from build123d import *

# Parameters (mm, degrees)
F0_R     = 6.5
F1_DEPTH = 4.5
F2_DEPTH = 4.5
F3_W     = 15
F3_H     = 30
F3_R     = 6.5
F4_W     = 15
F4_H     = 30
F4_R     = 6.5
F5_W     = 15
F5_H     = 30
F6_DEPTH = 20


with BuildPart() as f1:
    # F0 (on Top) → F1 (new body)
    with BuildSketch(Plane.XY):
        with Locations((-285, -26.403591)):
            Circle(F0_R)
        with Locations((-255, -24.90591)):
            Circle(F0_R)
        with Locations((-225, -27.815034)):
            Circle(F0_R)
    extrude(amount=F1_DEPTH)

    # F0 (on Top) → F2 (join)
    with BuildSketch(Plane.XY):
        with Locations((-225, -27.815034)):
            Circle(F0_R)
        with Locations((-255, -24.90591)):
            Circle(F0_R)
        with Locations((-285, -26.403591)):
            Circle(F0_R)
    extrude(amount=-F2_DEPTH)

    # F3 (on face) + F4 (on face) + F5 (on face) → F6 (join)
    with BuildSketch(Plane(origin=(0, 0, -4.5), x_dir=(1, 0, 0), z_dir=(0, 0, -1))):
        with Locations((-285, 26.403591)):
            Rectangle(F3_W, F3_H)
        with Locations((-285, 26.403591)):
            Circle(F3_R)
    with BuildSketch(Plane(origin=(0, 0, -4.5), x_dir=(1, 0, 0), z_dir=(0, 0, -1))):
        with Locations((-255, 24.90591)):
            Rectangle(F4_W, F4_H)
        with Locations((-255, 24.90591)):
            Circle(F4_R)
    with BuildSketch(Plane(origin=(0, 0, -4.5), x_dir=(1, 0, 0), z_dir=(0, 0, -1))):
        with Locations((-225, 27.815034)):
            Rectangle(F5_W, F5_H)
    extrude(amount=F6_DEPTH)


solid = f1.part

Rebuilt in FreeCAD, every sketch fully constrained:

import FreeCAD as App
import Part
import Sketcher

doc = App.newDocument("Part")
params = doc.addObject("Spreadsheet::Sheet", "Params")
for row, (alias, value) in enumerate([
    ("sketch1_diameter", "13 mm"),
    ("pad1_length", "4.5 mm"),
    ("sketch2_diameter", "13 mm"),
    ("pad2_length", "4.5 mm"),
    ("sketch3_width", "15 mm"),
    ("sketch3_height", "30 mm"),
    ("pad3_length", "20 mm"),
], start=1):
    params.set(f"A{row}", alias)
    params.set(f"B{row}", "=" + value)
    params.setAlias(f"B{row}", alias)

body = doc.addObject("PartDesign::Body", "Body")
body.AllowCompound = True

sketch1 = body.newObject("Sketcher::SketchObject", "Sketch")
sketch1.AttachmentSupport = (doc.getObject("XY_Plane"), [""])
sketch1.MapMode = "FlatFace"
sketch1.addGeometry([
    Part.Circle(App.Vector(-285, -26, 0), App.Vector(0, 0, 1), 6),
    Part.Circle(App.Vector(-255, -25, 0), App.Vector(0, 0, 1), 6),
    Part.Circle(App.Vector(-225, -28, 0), App.Vector(0, 0, 1), 6),
], False)
sketch1.addConstraint([
    Sketcher.Constraint("Equal", 0, 1),
    Sketcher.Constraint("Equal", 1, 2),
    Sketcher.Constraint("Diameter", 0, 13.0),
    Sketcher.Constraint("DistanceX", 0, 3, -1, 1, 285.0),
    Sketcher.Constraint("DistanceX", 1, 3, -1, 1, 255.0),
    Sketcher.Constraint("DistanceX", 2, 3, -1, 1, 225.0),
    Sketcher.Constraint("DistanceY", 0, 3, -1, 1, 26.403591),
    Sketcher.Constraint("DistanceY", 1, 3, -1, 1, 24.90591),
    Sketcher.Constraint("DistanceY", 2, 3, -1, 1, 27.815034),
])
sketch1.setExpression("Constraints[2]", "Params.sketch1_diameter")
pad1 = body.newObject("PartDesign::Pad", "Pad")
pad1.Profile = sketch1
pad1.setExpression("Length", "Params.pad1_length")

sketch2 = body.newObject("Sketcher::SketchObject", "Sketch001")
sketch2.AttachmentSupport = (doc.getObject("XY_Plane"), [""])
sketch2.MapMode = "FlatFace"
sketch2.addGeometry([
    Part.Circle(App.Vector(-225, -28, 0), App.Vector(0, 0, 1), 6),
    Part.Circle(App.Vector(-255, -25, 0), App.Vector(0, 0, 1), 6),
    Part.Circle(App.Vector(-285, -26, 0), App.Vector(0, 0, 1), 6),
], False)
sketch2.addConstraint([
    Sketcher.Constraint("Equal", 0, 1),
    Sketcher.Constraint("Equal", 1, 2),
    Sketcher.Constraint("Diameter", 0, 13.0),
    Sketcher.Constraint("DistanceX", 0, 3, -1, 1, 225.0),
    Sketcher.Constraint("DistanceX", 1, 3, -1, 1, 255.0),
    Sketcher.Constraint("DistanceX", 2, 3, -1, 1, 285.0),
    Sketcher.Constraint("DistanceY", 1, 3, -1, 1, 24.90591),
    Sketcher.Constraint("DistanceY", 2, 3, -1, 1, 26.403591),
    Sketcher.Constraint("DistanceY", 0, 3, -1, 1, 27.815034),
])
sketch2.setExpression("Constraints[2]", "Params.sketch2_diameter")
pad2 = body.newObject("PartDesign::Pad", "Pad001")
pad2.Profile = sketch2
pad2.setExpression("Length", "Params.pad2_length")
pad2.Reversed = True

sketch3 = body.newObject("Sketcher::SketchObject", "Sketch002")
sketch3.AttachmentSupport = (doc.getObject("XY_Plane"), [""])
sketch3.MapMode = "FlatFace"
sketch3.AttachmentOffset = App.Placement(App.Vector(0, 0, -4.5), App.Rotation())
sketch3.addGeometry([
    Part.LineSegment(App.Vector(-292, -41, 0), App.Vector(-292, -11, 0)),
    Part.LineSegment(App.Vector(-292, -11, 0), App.Vector(-278, -11, 0)),
    Part.LineSegment(App.Vector(-278, -11, 0), App.Vector(-278, -41, 0)),
    Part.LineSegment(App.Vector(-278, -41, 0), App.Vector(-292, -41, 0)),
    Part.LineSegment(App.Vector(-262, -40, 0), App.Vector(-262, -10, 0)),
    Part.LineSegment(App.Vector(-262, -10, 0), App.Vector(-248, -10, 0)),
    Part.LineSegment(App.Vector(-248, -10, 0), App.Vector(-248, -40, 0)),
    Part.LineSegment(App.Vector(-248, -40, 0), App.Vector(-262, -40, 0)),
    Part.LineSegment(App.Vector(-232, -43, 0), App.Vector(-232, -13, 0)),
    Part.LineSegment(App.Vector(-232, -13, 0), App.Vector(-218, -13, 0)),
    Part.LineSegment(App.Vector(-218, -13, 0), App.Vector(-218, -43, 0)),
    Part.LineSegment(App.Vector(-218, -43, 0), App.Vector(-232, -43, 0)),
], False)
sketch3.addConstraint([
    Sketcher.Constraint("Coincident", 0, 2, 1, 1),
    Sketcher.Constraint("Coincident", 1, 2, 2, 1),
    Sketcher.Constraint("Coincident", 2, 2, 3, 1),
    Sketcher.Constraint("Coincident", 3, 2, 0, 1),
    Sketcher.Constraint("Coincident", 4, 2, 5, 1),
    Sketcher.Constraint("Coincident", 5, 2, 6, 1),
    Sketcher.Constraint("Coincident", 6, 2, 7, 1),
    Sketcher.Constraint("Coincident", 7, 2, 4, 1),
    Sketcher.Constraint("Coincident", 8, 2, 9, 1),
    Sketcher.Constraint("Coincident", 9, 2, 10, 1),
    Sketcher.Constraint("Coincident", 10, 2, 11, 1),
    Sketcher.Constraint("Coincident", 11, 2, 8, 1),
    Sketcher.Constraint("Vertical", 0),
    Sketcher.Constraint("Horizontal", 1),
    Sketcher.Constraint("Vertical", 2),
    Sketcher.Constraint("Horizontal", 3),
    Sketcher.Constraint("Vertical", 4),
    Sketcher.Constraint("Horizontal", 5),
    Sketcher.Constraint("Vertical", 6),
    Sketcher.Constraint("Horizontal", 7),
    Sketcher.Constraint("Vertical", 8),
    Sketcher.Constraint("Horizontal", 9),
    Sketcher.Constraint("Vertical", 10),
    Sketcher.Constraint("Horizontal", 11),
    Sketcher.Constraint("Equal", 3, 5),
    Sketcher.Constraint("Equal", 7, 9),
    Sketcher.Constraint("Equal", 2, 4),
    Sketcher.Constraint("Equal", 6, 8),
    Sketcher.Constraint("DistanceX", 1, 1, 1, 2, 15.0),
    Sketcher.Constraint("DistanceY", 0, 1, 0, 2, 30.0),
    Sketcher.Constraint("DistanceX", 1, 2, 4, 2, 15.0),
    Sketcher.Constraint("DistanceX", 5, 2, 8, 2, 15.0),
    Sketcher.Constraint("DistanceX", 0, 2, -1, 1, 292.5),
    Sketcher.Constraint("DistanceY", 0, 2, -1, 1, 11.403591),
    Sketcher.Constraint("DistanceY", 4, 2, -1, 1, 9.90591),
    Sketcher.Constraint("DistanceY", 8, 2, -1, 1, 12.815034),
])
sketch3.setExpression("Constraints[28]", "Params.sketch3_width")
sketch3.setExpression("Constraints[29]", "Params.sketch3_height")
pad3 = body.newObject("PartDesign::Pad", "Pad002")
pad3.Profile = sketch3
pad3.setExpression("Length", "Params.pad3_length")
pad3.Reversed = True

doc.recompute()
